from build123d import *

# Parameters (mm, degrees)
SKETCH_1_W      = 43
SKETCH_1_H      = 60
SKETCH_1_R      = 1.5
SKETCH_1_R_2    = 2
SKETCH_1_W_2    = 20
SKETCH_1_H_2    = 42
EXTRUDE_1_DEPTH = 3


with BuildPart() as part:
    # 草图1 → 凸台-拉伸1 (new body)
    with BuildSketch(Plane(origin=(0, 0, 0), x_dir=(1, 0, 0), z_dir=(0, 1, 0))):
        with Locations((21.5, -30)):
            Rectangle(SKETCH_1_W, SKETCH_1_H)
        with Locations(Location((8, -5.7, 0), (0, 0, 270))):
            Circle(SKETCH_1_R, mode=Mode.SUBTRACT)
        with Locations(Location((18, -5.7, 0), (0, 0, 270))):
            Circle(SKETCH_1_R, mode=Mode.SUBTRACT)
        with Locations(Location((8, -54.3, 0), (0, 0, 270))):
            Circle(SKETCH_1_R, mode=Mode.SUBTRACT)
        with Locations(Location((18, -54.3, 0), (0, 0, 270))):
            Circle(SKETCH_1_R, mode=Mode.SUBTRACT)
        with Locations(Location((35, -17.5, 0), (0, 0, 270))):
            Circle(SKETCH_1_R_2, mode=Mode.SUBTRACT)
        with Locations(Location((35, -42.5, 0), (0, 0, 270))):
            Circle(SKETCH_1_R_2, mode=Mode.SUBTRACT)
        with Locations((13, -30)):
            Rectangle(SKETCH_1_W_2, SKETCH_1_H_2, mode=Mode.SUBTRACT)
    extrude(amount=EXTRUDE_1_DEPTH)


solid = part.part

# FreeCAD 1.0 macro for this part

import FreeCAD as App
import Part
import Sketcher

V = App.Vector
Q = App.Units.Quantity


def add_polygon(sketch, points):
    """Adds a closed chain of lines whose ends are joined by coincident constraints."""
    first, n = sketch.GeometryCount, len(points)
    for a, b in zip(points, points[1:] + points[:1]):
        sketch.addGeometry(Part.LineSegment(App.Vector(*a, 0), App.Vector(*b, 0)), False)
    for i in range(n):
        sketch.addConstraint(Sketcher.Constraint("Coincident", first + i, 2, first + (i + 1) % n, 1))

doc = App.newDocument("Part")
body = doc.addObject("PartDesign::Body", "Body")

sketch1 = body.newObject("Sketcher::SketchObject", "Sketch")
sketch1.AttachmentSupport = (doc.getObject("XZ_Plane"), [""])
sketch1.MapMode = "FlatFace"
add_polygon(sketch1, [(0, 0), (0, 60), (43, 60), (43, 0)])
sketch1.addGeometry(Part.Circle(V(8, 54.3, 0), V(0, 0, 1), 1.5), False)
sketch1.addGeometry(Part.Circle(V(18, 54.3, 0), V(0, 0, 1), 1.5), False)
sketch1.addGeometry(Part.Circle(V(35, 42.5, 0), V(0, 0, 1), 2), False)
add_polygon(sketch1, [(23, 51), (3, 51), (3, 9), (23, 9)])
sketch1.addGeometry(Part.Circle(V(8, 5.7, 0), V(0, 0, 1), 1.5), False)
sketch1.addGeometry(Part.Circle(V(18, 5.7, 0), V(0, 0, 1), 1.5), False)
sketch1.addGeometry(Part.Circle(V(35, 17.5, 0), V(0, 0, 1), 2), False)
sketch1.addConstraint([
    Sketcher.Constraint("Vertical", 0),
    Sketcher.Constraint("Horizontal", 1),
    Sketcher.Constraint("Vertical", 2),
    Sketcher.Constraint("Horizontal", 3),
    Sketcher.Constraint("Horizontal", 7),
    Sketcher.Constraint("Vertical", 8),
    Sketcher.Constraint("Horizontal", 9),
    Sketcher.Constraint("Vertical", 10),
    Sketcher.Constraint("Coincident", 3, 2, -1, 1),
    Sketcher.Constraint("Equal", 4, 5),
    Sketcher.Constraint("Equal", 5, 11),
    Sketcher.Constraint("Equal", 11, 12),
    Sketcher.Constraint("Equal", 6, 13),
    Sketcher.Constraint("Horizontal", 4, 3, 5, 3),
    Sketcher.Constraint("Horizontal", 11, 3, 12, 3),
    Sketcher.Constraint("Vertical", 4, 3, 11, 3),
    Sketcher.Constraint("Vertical", 5, 3, 12, 3),
    Sketcher.Constraint("Vertical", 6, 3, 13, 3),
    Sketcher.Constraint("Diameter", 4, Q("3 mm")),
    Sketcher.Constraint("Diameter", 6, Q("4 mm")),
    Sketcher.Constraint("DistanceX", 1, 1, 1, 2, Q("43 mm")),
    Sketcher.Constraint("DistanceX", 7, 2, 7, 1, Q("20 mm")),
    Sketcher.Constraint("DistanceY", 0, 1, 0, 2, Q("60 mm")),
    Sketcher.Constraint("DistanceY", 8, 2, 8, 1, Q("42 mm")),
    Sketcher.Constraint("DistanceX", -1, 1, 4, 3, Q("8 mm")),
    Sketcher.Constraint("DistanceX", -1, 1, 5, 3, Q("18 mm")),
    Sketcher.Constraint("DistanceX", -1, 1, 6, 3, Q("35 mm")),
    Sketcher.Constraint("DistanceX", -1, 1, 7, 2, Q("3 mm")),
    Sketcher.Constraint("DistanceY", -1, 1, 7, 2, Q("51 mm")),
    Sketcher.Constraint("DistanceY", 13, 3, 6, 3, Q("25 mm")),
    Sketcher.Constraint("DistanceY", -1, 1, 4, 3, Q("54.3 mm")),
    Sketcher.Constraint("DistanceY", -1, 1, 6, 3, Q("42.5 mm")),
    Sketcher.Constraint("DistanceY", -1, 1, 11, 3, Q("5.7 mm")),
])
pad1 = body.newObject("PartDesign::Pad", "Pad")
pad1.Profile = sketch1
pad1.Length = 3
pad1.Reversed = True

doc.recompute()
